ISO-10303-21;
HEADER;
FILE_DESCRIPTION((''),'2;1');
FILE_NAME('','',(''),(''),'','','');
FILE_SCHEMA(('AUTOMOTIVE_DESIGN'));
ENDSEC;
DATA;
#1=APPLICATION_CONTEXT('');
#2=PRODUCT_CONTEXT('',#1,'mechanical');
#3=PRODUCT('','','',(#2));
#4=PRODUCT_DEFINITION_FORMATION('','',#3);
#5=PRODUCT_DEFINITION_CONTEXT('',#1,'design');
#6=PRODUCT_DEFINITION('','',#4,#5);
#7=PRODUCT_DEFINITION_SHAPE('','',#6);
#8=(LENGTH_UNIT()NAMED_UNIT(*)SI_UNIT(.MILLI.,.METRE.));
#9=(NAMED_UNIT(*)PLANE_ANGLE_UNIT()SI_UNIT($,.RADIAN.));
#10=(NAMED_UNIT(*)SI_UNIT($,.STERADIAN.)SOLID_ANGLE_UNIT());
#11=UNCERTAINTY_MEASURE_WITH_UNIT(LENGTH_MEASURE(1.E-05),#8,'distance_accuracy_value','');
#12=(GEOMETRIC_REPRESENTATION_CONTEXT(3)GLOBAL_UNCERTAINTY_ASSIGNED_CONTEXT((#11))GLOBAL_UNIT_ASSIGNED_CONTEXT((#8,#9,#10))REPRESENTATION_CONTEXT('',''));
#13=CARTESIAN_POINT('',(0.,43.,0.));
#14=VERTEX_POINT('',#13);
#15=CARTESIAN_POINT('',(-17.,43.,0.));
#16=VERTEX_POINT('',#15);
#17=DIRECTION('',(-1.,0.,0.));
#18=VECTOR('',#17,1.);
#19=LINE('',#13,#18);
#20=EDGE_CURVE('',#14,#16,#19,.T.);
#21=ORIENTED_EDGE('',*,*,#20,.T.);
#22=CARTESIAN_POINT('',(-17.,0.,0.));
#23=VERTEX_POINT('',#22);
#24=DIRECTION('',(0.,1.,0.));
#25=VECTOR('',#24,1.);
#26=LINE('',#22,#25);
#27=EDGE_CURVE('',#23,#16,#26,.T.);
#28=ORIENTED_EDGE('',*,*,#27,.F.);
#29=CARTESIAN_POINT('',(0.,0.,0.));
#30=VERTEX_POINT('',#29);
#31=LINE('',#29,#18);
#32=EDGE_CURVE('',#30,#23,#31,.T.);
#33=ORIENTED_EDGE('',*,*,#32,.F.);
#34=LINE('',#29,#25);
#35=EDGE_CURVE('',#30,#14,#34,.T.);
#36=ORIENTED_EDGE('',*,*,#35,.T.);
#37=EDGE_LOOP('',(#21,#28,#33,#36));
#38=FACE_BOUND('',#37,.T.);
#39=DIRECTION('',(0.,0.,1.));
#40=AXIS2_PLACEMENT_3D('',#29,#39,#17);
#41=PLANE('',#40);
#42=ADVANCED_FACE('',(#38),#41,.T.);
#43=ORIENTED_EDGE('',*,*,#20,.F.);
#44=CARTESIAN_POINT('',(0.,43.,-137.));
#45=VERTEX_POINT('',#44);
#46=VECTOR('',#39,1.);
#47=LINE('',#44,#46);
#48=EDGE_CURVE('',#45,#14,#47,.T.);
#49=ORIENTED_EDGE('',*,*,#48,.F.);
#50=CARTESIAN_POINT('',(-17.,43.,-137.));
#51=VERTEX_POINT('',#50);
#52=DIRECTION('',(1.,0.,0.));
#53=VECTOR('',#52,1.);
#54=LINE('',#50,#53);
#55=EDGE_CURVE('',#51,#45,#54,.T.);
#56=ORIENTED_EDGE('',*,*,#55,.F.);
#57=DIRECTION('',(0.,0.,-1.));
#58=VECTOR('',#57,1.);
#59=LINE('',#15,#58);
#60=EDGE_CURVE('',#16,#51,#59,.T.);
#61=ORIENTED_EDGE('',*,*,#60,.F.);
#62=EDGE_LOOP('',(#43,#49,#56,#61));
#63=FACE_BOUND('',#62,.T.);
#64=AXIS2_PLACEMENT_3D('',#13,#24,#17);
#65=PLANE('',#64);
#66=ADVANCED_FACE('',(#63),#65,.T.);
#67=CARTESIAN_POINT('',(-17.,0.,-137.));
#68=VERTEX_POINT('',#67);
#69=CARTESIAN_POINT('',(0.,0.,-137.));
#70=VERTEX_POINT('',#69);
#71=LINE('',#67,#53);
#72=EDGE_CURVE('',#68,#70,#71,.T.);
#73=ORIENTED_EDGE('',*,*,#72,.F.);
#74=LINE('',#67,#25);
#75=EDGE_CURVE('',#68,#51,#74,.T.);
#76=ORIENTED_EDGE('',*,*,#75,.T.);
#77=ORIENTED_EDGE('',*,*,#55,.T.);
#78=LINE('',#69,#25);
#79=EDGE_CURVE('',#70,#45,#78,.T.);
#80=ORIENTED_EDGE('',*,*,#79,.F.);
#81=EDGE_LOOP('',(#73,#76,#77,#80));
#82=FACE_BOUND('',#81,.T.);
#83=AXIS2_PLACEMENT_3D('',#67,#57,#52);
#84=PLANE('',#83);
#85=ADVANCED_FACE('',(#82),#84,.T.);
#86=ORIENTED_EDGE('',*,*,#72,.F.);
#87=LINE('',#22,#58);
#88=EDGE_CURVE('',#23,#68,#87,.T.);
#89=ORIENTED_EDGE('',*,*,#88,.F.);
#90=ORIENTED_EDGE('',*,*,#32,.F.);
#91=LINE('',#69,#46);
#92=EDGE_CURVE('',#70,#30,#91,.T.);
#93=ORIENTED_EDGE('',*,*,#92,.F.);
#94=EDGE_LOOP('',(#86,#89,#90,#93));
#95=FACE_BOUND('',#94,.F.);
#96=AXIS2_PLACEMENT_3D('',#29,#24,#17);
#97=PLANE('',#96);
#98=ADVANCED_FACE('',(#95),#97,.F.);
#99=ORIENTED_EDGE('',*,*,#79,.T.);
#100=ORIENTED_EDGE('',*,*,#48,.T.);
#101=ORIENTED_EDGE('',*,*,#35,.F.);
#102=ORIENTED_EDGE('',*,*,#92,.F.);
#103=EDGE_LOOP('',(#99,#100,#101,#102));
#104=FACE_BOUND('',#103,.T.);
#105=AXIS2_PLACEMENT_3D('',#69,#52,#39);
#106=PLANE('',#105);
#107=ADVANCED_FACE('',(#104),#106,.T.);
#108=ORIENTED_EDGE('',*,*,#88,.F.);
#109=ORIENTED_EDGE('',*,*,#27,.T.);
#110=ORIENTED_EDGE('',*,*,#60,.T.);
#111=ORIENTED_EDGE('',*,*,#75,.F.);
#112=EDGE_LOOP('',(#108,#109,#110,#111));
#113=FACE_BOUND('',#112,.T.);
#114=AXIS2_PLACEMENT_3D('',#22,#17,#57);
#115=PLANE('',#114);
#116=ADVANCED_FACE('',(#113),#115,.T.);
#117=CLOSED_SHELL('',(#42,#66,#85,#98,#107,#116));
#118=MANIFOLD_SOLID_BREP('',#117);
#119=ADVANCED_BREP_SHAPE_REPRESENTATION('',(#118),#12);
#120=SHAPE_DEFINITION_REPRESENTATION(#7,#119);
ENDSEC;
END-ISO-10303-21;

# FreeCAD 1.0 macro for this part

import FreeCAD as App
import Part
import Sketcher

V = App.Vector
Q = App.Units.Quantity

doc = App.newDocument("Part")
params = doc.addObject("Spreadsheet::Sheet", "Params")
for row, (alias, value) in enumerate([
    ("sketch1_width", "17 mm"),
    ("sketch1_height", "137 mm"),
    ("pad1_length", "43 mm"),
], start=1):
    params.set(f"A{row}", alias)
    params.set(f"B{row}", "=" + value)
    params.setAlias(f"B{row}", alias)

body = doc.addObject("PartDesign::Body", "Body")

# Sketch on XZ plane
sketch1 = body.newObject("Sketcher::SketchObject", "Sketch")
sketch1.AttachmentSupport = (doc.getObject("XZ_Plane"), [""])
sketch1.MapMode = "FlatFace"
sketch1.addGeometry([
    Part.LineSegment(V(-17, 0, 0), V(0, 0, 0)),
    Part.LineSegment(V(0, 0, 0), V(0, -137, 0)),
    Part.LineSegment(V(0, -137, 0), V(-17, -137, 0)),
    Part.LineSegment(V(-17, -137, 0), V(-17, 0, 0)),
], False)
sketch1.addConstraint([
    Sketcher.Constraint("Coincident", 0, 2, 1, 1),
    Sketcher.Constraint("Coincident", 1, 2, 2, 1),
    Sketcher.Constraint("Coincident", 2, 2, 3, 1),
    Sketcher.Constraint("Coincident", 3, 2, 0, 1),
    Sketcher.Constraint("Horizontal", 0),
    Sketcher.Constraint("Vertical", 1),
    Sketcher.Constraint("Horizontal", 2),
    Sketcher.Constraint("Vertical", 3),
    Sketcher.Constraint("Coincident", 0, 2, -1, 1),
    Sketcher.Constraint("DistanceX", 0, 1, 0, 2, Q("17 mm")),
    Sketcher.Constraint("DistanceY", 1, 2, 1, 1, Q("137 mm")),
])
sketch1.setExpression("Constraints[9]", "Params.sketch1_width")
sketch1.setExpression("Constraints[10]", "Params.sketch1_height")
pad1 = body.newObject("PartDesign::Pad", "Pad")
pad1.Profile = sketch1
pad1.setExpression("Length", "Params.pad1_length")
pad1.Reversed = True

doc.recompute()
